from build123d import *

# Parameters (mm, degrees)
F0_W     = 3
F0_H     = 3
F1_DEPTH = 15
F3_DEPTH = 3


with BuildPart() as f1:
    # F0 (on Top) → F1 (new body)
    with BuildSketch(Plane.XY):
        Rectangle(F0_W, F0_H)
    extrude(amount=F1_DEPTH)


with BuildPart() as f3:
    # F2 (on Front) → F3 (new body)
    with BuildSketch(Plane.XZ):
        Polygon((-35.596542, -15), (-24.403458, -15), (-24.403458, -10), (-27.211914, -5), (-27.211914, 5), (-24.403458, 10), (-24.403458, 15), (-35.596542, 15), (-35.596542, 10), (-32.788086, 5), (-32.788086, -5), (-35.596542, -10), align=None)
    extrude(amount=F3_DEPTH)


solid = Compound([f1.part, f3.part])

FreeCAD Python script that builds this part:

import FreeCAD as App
import Part
import Sketcher

doc = App.newDocument("Part")
body = doc.addObject("PartDesign::Body", "Body")

# Sketch on XY plane
sketch1 = body.newObject("Sketcher::SketchObject", "Sketch")
sketch1.AttachmentSupport = (doc.getObject("XY_Plane"), [""])
sketch1.MapMode = "FlatFace"
sketch1.addGeometry(Part.LineSegment(App.Vector(-1.5, 1.5, 0), App.Vector(-1.5, -1.5, 0)), False)
sketch1.addGeometry(Part.LineSegment(App.Vector(-1.5, -1.5, 0), App.Vector(1.5, -1.5, 0)), False)
sketch1.addGeometry(Part.LineSegment(App.Vector(1.5, -1.5, 0), App.Vector(1.5, 1.5, 0)), False)
sketch1.addGeometry(Part.LineSegment(App.Vector(1.5, 1.5, 0), App.Vector(-1.5, 1.5, 0)), False)
sketch1.addConstraint(Sketcher.Constraint("Coincident", 0, 2, 1, 1))
sketch1.addConstraint(Sketcher.Constraint("Coincident", 1, 2, 2, 1))
sketch1.addConstraint(Sketcher.Constraint("Coincident", 2, 2, 3, 1))
sketch1.addConstraint(Sketcher.Constraint("Coincident", 3, 2, 0, 1))
sketch1.addConstraint(Sketcher.Constraint("Vertical", 0))
sketch1.addConstraint(Sketcher.Constraint("Horizontal", 1))
sketch1.addConstraint(Sketcher.Constraint("Vertical", 2))
sketch1.addConstraint(Sketcher.Constraint("Horizontal", 3))
sketch1.addConstraint(Sketcher.Constraint("Symmetric", 0, 2, 2, 2, -1, 1))
sketch1.addConstraint(Sketcher.Constraint("Equal", 3, 0))
sketch1.addConstraint(Sketcher.Constraint("DistanceX", 1, 1, 1, 2, 3.0))
pad1 = body.newObject("PartDesign::Pad", "Pad")
pad1.Profile = sketch1
pad1.Length = 15
body2 = doc.addObject("PartDesign::Body", "Body001")

# Sketch on XZ plane
sketch2 = body2.newObject("Sketcher::SketchObject", "Sketch001")
sketch2.AttachmentSupport = (doc.getObject("XZ_Plane001"), [""])
sketch2.MapMode = "FlatFace"
sketch2.addGeometry(Part.LineSegment(App.Vector(-36, -15, 0), App.Vector(-24, -15, 0)), False)
sketch2.addGeometry(Part.LineSegment(App.Vector(-24, -15, 0), App.Vector(-24, -10, 0)), False)
sketch2.addGeometry(Part.LineSegment(App.Vector(-24, -10, 0), App.Vector(-27, -5, 0)), False)
sketch2.addGeometry(Part.LineSegment(App.Vector(-27, -5, 0), App.Vector(-27, 5, 0)), False)
sketch2.addGeometry(Part.LineSegment(App.Vector(-27, 5, 0), App.Vector(-24, 10, 0)), False)
sketch2.addGeometry(Part.LineSegment(App.Vector(-24, 10, 0), App.Vector(-24, 15, 0)), False)
sketch2.addGeometry(Part.LineSegment(App.Vector(-24, 15, 0), App.Vector(-36, 15, 0)), False)
sketch2.addGeometry(Part.LineSegment(App.Vector(-36, 15, 0), App.Vector(-36, 10, 0)), False)
sketch2.addGeometry(Part.LineSegment(App.Vector(-36, 10, 0), App.Vector(-33, 5, 0)), False)
sketch2.addGeometry(Part.LineSegment(App.Vector(-33, 5, 0), App.Vector(-33, -5, 0)), False)
sketch2.addGeometry(Part.LineSegment(App.Vector(-33, -5, 0), App.Vector(-36, -10, 0)), False)
sketch2.addGeometry(Part.LineSegment(App.Vector(-36, -10, 0), App.Vector(-36, -15, 0)), False)
sketch2.addConstraint(Sketcher.Constraint("Coincident", 0, 2, 1, 1))
sketch2.addConstraint(Sketcher.Constraint("Coincident", 1, 2, 2, 1))
sketch2.addConstraint(Sketcher.Constraint("Coincident", 2, 2, 3, 1))
sketch2.addConstraint(Sketcher.Constraint("Coincident", 3, 2, 4, 1))
sketch2.addConstraint(Sketcher.Constraint("Coincident", 4, 2, 5, 1))
sketch2.addConstraint(Sketcher.Constraint("Coincident", 5, 2, 6, 1))
sketch2.addConstraint(Sketcher.Constraint("Coincident", 6, 2, 7, 1))
sketch2.addConstraint(Sketcher.Constraint("Coincident", 7, 2, 8, 1))
sketch2.addConstraint(Sketcher.Constraint("Coincident", 8, 2, 9, 1))
sketch2.addConstraint(Sketcher.Constraint("Coincident", 9, 2, 10, 1))
sketch2.addConstraint(Sketcher.Constraint("Coincident", 10, 2, 11, 1))
sketch2.addConstraint(Sketcher.Constraint("Coincident", 11, 2, 0, 1))
sketch2.addConstraint(Sketcher.Constraint("Horizontal", 0))
sketch2.addConstraint(Sketcher.Constraint("Vertical", 1))
sketch2.addConstraint(Sketcher.Constraint("Vertical", 3))
sketch2.addConstraint(Sketcher.Constraint("Vertical", 5))
sketch2.addConstraint(Sketcher.Constraint("Horizontal", 6))
sketch2.addConstraint(Sketcher.Constraint("Vertical", 7))
sketch2.addConstraint(Sketcher.Constraint("Vertical", 9))
sketch2.addConstraint(Sketcher.Constraint("Vertical", 11))
sketch2.addConstraint(Sketcher.Constraint("Symmetric", 1, 2, 4, 2, -1))
sketch2.addConstraint(Sketcher.Constraint("Symmetric", 7, 2, 10, 2, -1))
sketch2.addConstraint(Sketcher.Constraint("Parallel", 2, 8))
sketch2.addConstraint(Sketcher.Constraint("Parallel", 4, 10))
sketch2.addConstraint(Sketcher.Constraint("Horizontal", 4, 2, 7, 2))
sketch2.addConstraint(Sketcher.Constraint("Horizontal", 3, 2, 8, 2))
sketch2.addConstraint(Sketcher.Constraint("Horizontal", 2, 2, 9, 2))
sketch2.addConstraint(Sketcher.Constraint("Equal", 1, 5))
sketch2.addConstraint(Sketcher.Constraint("DistanceY", 1, 1, 1, 2, 5.0))
sketch2.addConstraint(Sketcher.Constraint("DistanceY", 3, 1, 3, 2, 10.0))
sketch2.addConstraint(Sketcher.Constraint("DistanceY", 0, 2, -1, 1, 15.0))
sketch2.addConstraint(Sketcher.Constraint("DistanceX", 0, 1, 0, 2, 11.193084))
sketch2.addConstraint(Sketcher.Constraint("DistanceX", 0, 2, -1, 1, 24.403458))
sketch2.addConstraint(Sketcher.Constraint("DistanceX", 8, 2, 3, 2, 5.576172))
pad2 = body2.newObject("PartDesign::Pad", "Pad001")
pad2.Profile = sketch2
pad2.Length = 3

doc.recompute()
